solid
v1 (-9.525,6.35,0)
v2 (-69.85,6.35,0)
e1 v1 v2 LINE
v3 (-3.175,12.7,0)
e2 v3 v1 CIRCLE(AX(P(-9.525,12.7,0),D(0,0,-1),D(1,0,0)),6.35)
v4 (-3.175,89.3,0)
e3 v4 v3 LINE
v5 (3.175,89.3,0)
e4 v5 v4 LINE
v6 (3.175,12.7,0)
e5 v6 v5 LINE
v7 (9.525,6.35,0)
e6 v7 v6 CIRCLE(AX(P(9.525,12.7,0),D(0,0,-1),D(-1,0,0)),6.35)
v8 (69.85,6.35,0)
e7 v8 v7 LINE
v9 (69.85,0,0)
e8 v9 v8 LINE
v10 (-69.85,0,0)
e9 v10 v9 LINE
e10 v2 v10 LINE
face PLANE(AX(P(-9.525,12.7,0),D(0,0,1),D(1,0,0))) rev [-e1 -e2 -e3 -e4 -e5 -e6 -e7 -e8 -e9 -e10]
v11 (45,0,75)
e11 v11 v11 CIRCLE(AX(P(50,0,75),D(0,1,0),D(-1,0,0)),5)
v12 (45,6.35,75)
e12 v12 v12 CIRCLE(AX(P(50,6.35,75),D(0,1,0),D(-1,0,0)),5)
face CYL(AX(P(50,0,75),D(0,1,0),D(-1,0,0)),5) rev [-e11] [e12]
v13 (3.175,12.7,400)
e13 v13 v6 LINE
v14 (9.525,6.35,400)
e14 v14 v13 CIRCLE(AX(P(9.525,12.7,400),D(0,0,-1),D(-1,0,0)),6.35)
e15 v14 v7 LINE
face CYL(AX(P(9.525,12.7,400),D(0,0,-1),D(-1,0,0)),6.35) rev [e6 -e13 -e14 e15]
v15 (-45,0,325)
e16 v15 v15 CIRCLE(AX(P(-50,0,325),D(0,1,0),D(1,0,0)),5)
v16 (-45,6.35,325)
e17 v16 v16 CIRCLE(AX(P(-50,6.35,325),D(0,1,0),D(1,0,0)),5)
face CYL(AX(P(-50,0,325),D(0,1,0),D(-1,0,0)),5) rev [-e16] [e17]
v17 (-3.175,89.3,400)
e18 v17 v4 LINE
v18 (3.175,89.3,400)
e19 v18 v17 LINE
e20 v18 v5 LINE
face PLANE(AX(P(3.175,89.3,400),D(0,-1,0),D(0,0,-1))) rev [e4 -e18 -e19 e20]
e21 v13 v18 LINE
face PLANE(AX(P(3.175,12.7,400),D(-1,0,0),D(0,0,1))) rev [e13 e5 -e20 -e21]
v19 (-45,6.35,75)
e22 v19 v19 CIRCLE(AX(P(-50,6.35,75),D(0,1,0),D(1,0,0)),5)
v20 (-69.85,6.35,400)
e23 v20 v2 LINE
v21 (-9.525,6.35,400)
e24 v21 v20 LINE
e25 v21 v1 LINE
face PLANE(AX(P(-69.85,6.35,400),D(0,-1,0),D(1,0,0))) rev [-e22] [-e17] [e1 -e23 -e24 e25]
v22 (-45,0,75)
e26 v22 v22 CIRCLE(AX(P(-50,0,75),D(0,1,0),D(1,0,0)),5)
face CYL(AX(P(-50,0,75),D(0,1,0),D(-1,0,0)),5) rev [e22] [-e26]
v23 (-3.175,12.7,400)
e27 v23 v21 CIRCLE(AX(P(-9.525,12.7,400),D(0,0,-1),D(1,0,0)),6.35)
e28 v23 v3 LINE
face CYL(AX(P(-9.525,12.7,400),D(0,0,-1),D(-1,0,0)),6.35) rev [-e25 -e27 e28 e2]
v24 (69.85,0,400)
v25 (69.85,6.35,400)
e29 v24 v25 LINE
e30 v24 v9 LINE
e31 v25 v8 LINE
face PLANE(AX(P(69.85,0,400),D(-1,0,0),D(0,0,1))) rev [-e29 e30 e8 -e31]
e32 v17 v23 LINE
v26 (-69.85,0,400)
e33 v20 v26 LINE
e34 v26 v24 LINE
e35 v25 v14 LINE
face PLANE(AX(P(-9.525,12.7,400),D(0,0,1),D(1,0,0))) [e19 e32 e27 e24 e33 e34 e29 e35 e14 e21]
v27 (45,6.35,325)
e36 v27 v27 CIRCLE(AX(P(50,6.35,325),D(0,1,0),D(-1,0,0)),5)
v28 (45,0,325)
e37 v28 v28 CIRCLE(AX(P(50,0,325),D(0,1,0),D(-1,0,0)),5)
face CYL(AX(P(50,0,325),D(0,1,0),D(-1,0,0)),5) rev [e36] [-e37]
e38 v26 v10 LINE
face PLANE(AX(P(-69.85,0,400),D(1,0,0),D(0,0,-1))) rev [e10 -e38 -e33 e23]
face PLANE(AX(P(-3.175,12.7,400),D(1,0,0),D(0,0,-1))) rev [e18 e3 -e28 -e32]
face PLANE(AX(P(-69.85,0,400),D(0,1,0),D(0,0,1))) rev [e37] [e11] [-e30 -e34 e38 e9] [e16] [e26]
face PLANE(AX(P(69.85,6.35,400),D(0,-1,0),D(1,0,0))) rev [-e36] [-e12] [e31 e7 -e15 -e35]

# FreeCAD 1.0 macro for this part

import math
import FreeCAD as App
import Part
import Sketcher

V = App.Vector
Q = App.Units.Quantity

doc = App.newDocument("Part")
body = doc.addObject("PartDesign::Body", "Body")

sketch1 = body.newObject("Sketcher::SketchObject", "Sketch")
sketch1.AttachmentSupport = (doc.getObject("XY_Plane"), [""])
sketch1.MapMode = "FlatFace"
sketch1.addGeometry([
    Part.LineSegment(V(-69.85, 0, 0), V(69.85, 0, 0)),
    Part.LineSegment(V(69.85, 0, 0), V(69.85, 6.35, 0)),
    Part.LineSegment(V(69.85, 6.35, 0), V(9.525, 6.35, 0)),
    Part.ArcOfCircle(Part.Circle(V(9.525, 12.7, 0), V(0, 0, 1), 6.35), math.radians(180), math.radians(270)),
    Part.LineSegment(V(3.175, 12.7, 0), V(3.175, 89.3, 0)),
    Part.LineSegment(V(3.175, 89.3, 0), V(-3.175, 89.3, 0)),
    Part.LineSegment(V(-3.175, 89.3, 0), V(-3.175, 12.7, 0)),
    Part.ArcOfCircle(Part.Circle(V(-9.525, 12.7, 0), V(0, 0, 1), 6.35), math.radians(-90), math.radians(0)),
    Part.LineSegment(V(-9.525, 6.35, 0), V(-69.85, 6.35, 0)),
    Part.LineSegment(V(-69.85, 6.35, 0), V(-69.85, 0, 0)),
], False)
sketch1.addConstraint([
    Sketcher.Constraint("Coincident", 0, 2, 1, 1),
    Sketcher.Constraint("Coincident", 1, 2, 2, 1),
    Sketcher.Constraint("Tangent", 2, 2, 3, 2),
    Sketcher.Constraint("Tangent", 3, 1, 4, 1),
    Sketcher.Constraint("Coincident", 4, 2, 5, 1),
    Sketcher.Constraint("Coincident", 5, 2, 6, 1),
    Sketcher.Constraint("Tangent", 6, 2, 7, 2),
    Sketcher.Constraint("Tangent", 7, 1, 8, 1),
    Sketcher.Constraint("Coincident", 8, 2, 9, 1),
    Sketcher.Constraint("Coincident", 9, 2, 0, 1),
    Sketcher.Constraint("Horizontal", 0),
    Sketcher.Constraint("Vertical", 1),
    Sketcher.Constraint("Horizontal", 2),
    Sketcher.Constraint("Vertical", 4),
    Sketcher.Constraint("Horizontal", 5),
    Sketcher.Constraint("Vertical", 6),
    Sketcher.Constraint("Horizontal", 8),
    Sketcher.Constraint("Vertical", 9),
    Sketcher.Constraint("Equal", 3, 7),
    Sketcher.Constraint("Symmetric", 0, 2, 9, 2, -1, 1),
    Sketcher.Constraint("Symmetric", 3, 3, 7, 3, -2),
    Sketcher.Constraint("Equal", 5, 1),
    Sketcher.Constraint("Radius", 3, Q("0.25 in")),
    Sketcher.Constraint("DistanceX", 0, 1, 0, 2, Q("5.5 in")),
    Sketcher.Constraint("DistanceX", 5, 2, 5, 1, Q("0.25 in")),
    Sketcher.Constraint("DistanceY", 4, 1, 4, 2, 76.6),
])
pad1 = body.newObject("PartDesign::Pad", "Pad")
pad1.Profile = sketch1
pad1.Length = 400

sketch2 = body.newObject("Sketcher::SketchObject", "Sketch001")
sketch2.AttachmentSupport = (doc.getObject("XZ_Plane"), [""])
sketch2.MapMode = "FlatFace"
sketch2.AttachmentOffset = App.Placement(V(0, 0, -0.25 * 25.4), App.Rotation())
sketch2.addGeometry([
    Part.Circle(V(50, 75, 0), V(0, 0, 1), 5),
    Part.Circle(V(-50, 75, 0), V(0, 0, 1), 5),
    Part.Circle(V(50, 325, 0), V(0, 0, 1), 5),
    Part.Circle(V(-50, 325, 0), V(0, 0, 1), 5),
], False)
sketch2.addConstraint([
    Sketcher.Constraint("Equal", 0, 1),
    Sketcher.Constraint("Equal", 1, 2),
    Sketcher.Constraint("Equal", 2, 3),
    Sketcher.Constraint("Symmetric", 0, 3, 1, 3, -2),
    Sketcher.Constraint("Symmetric", 2, 3, 3, 3, -2),
    Sketcher.Constraint("Vertical", 0, 3, 2, 3),
    Sketcher.Constraint("Diameter", 0, 10.0),
    Sketcher.Constraint("DistanceX", -1, 1, 0, 3, 50.0),
    Sketcher.Constraint("DistanceY", -1, 1, 0, 3, 75.0),
    Sketcher.Constraint("DistanceY", -1, 1, 2, 3, 325.0),
])
pocket1 = body.newObject("PartDesign::Pocket", "Pocket")
pocket1.Profile = sketch2
pocket1.Type = "ThroughAll"
pocket1.Reversed = True

doc.recompute()
